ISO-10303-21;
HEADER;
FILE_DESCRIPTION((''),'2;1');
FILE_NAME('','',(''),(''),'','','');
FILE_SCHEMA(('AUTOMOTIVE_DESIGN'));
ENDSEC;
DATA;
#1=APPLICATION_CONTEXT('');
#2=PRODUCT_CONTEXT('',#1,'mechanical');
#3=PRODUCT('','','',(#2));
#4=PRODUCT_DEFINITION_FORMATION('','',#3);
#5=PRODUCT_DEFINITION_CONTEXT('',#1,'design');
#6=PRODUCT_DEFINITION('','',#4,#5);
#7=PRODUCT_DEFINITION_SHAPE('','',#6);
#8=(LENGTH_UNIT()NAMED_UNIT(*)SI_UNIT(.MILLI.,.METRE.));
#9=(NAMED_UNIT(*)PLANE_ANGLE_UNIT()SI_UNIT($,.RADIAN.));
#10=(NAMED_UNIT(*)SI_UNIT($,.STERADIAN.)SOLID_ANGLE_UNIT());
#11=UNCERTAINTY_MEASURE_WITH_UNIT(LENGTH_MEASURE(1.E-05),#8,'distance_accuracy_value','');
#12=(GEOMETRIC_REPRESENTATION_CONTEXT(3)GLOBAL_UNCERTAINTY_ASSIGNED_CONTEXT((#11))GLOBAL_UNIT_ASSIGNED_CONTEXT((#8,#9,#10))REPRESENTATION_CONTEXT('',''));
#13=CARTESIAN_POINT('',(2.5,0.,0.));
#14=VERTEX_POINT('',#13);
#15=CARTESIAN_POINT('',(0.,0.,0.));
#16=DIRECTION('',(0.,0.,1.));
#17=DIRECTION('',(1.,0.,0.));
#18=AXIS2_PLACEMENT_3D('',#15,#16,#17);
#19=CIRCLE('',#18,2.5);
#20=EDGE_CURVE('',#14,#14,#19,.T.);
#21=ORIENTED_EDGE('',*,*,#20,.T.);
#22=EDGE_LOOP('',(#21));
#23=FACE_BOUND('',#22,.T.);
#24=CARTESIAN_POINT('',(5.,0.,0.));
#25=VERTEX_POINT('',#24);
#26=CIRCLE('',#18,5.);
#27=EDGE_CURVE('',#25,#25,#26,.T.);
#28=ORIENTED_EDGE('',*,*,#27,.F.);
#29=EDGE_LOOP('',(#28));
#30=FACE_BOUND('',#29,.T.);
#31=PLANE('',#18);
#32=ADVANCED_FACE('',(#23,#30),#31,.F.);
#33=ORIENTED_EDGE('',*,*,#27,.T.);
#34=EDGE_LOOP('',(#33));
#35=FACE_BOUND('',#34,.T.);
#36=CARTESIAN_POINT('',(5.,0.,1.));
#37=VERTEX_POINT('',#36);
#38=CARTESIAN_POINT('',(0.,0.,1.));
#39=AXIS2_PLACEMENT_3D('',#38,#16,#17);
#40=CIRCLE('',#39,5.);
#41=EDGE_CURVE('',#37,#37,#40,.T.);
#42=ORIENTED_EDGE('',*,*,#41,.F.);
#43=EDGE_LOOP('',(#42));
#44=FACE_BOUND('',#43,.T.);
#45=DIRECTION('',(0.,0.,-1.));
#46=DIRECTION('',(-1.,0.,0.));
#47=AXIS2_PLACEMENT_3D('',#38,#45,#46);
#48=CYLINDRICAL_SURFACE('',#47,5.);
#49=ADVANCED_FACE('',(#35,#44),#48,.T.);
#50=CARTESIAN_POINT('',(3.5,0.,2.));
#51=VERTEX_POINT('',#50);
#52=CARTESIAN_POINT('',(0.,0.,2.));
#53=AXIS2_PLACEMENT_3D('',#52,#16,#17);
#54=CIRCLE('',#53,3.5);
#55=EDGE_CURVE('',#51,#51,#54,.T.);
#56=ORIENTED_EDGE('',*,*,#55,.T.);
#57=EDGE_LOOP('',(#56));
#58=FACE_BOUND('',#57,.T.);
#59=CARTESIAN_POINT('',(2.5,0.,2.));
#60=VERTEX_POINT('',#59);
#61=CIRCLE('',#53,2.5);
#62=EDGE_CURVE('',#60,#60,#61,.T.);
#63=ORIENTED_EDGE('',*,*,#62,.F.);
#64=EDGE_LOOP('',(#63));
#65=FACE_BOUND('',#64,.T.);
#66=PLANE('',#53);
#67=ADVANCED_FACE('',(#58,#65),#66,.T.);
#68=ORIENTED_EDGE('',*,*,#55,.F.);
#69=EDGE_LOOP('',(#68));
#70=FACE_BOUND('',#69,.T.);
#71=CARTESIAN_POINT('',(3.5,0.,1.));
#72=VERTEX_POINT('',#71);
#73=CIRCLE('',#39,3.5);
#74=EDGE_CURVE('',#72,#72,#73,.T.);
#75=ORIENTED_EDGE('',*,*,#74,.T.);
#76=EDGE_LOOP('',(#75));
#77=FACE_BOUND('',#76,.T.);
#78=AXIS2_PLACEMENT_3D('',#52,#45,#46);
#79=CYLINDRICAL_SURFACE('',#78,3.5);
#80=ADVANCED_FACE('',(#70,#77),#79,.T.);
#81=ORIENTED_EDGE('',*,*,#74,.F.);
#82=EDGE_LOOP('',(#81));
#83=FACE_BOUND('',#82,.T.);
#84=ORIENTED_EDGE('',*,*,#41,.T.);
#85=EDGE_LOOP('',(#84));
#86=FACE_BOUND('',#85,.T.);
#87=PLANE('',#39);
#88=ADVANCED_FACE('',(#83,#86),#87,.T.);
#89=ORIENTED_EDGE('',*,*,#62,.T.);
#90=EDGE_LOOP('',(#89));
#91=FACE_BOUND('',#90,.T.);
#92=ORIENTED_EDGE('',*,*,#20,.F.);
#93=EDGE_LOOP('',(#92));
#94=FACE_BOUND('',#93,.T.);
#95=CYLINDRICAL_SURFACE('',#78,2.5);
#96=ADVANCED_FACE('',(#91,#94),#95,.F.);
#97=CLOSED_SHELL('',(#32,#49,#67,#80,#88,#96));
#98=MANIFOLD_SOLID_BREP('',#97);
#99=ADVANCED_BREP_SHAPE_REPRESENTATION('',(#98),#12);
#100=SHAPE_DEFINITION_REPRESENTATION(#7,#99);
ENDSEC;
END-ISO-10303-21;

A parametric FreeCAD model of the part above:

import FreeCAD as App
import Part
import Sketcher

doc = App.newDocument("Part")
body = doc.addObject("PartDesign::Body", "Body")

# Sketch on XY plane
sketch1 = body.newObject("Sketcher::SketchObject", "Sketch")
sketch1.AttachmentSupport = (doc.getObject("XY_Plane"), [""])
sketch1.MapMode = "FlatFace"
sketch1.addGeometry(Part.Circle(App.Vector(0, 0, 0), App.Vector(0, 0, 1), 5), False)
sketch1.addConstraint([
    Sketcher.Constraint("Coincident", 0, 3, -1, 1),
    Sketcher.Constraint("Diameter", 0, 10.0),
])
pad1 = body.newObject("PartDesign::Pad", "Pad")
pad1.Profile = sketch1
pad1.Length = 1

# Sketch on XY plane
sketch2 = body.newObject("Sketcher::SketchObject", "Sketch001")
sketch2.AttachmentSupport = (doc.getObject("XY_Plane"), [""])
sketch2.MapMode = "FlatFace"
sketch2.AttachmentOffset = App.Placement(App.Vector(0, 0, 1), App.Rotation())
sketch2.addGeometry([
    Part.Circle(App.Vector(0, 0, 0), App.Vector(0, 0, 1), 3.5),
    Part.Circle(App.Vector(0, 0, 0), App.Vector(0, 0, 1), 2.5),
], False)
sketch2.addConstraint([
    Sketcher.Constraint("Coincident", 0, 3, -1, 1),
    Sketcher.Constraint("Coincident", 1, 3, -1, 1),
    Sketcher.Constraint("Diameter", 0, 7.0),
    Sketcher.Constraint("Diameter", 1, 5.0),
])
pad2 = body.newObject("PartDesign::Pad", "Pad001")
pad2.Profile = sketch2
pad2.Length = 1

# Sketch on XY plane
sketch3 = body.newObject("Sketcher::SketchObject", "Sketch002")
sketch3.AttachmentSupport = (doc.getObject("XY_Plane"), [""])
sketch3.MapMode = "FlatFace"
sketch3.AttachmentOffset = App.Placement(App.Vector(0, 0, -4), App.Rotation())
sketch3.addGeometry(Part.Circle(App.Vector(0, 0, 0), App.Vector(0, 0, 1), 2.5), False)
sketch3.addConstraint([
    Sketcher.Constraint("Coincident", 0, 3, -1, 1),
    Sketcher.Constraint("Diameter", 0, 5.0),
])
pocket1 = body.newObject("PartDesign::Pocket", "Pocket")
pocket1.Profile = sketch3
pocket1.Length = 5
pocket1.Reversed = True

doc.recompute()
